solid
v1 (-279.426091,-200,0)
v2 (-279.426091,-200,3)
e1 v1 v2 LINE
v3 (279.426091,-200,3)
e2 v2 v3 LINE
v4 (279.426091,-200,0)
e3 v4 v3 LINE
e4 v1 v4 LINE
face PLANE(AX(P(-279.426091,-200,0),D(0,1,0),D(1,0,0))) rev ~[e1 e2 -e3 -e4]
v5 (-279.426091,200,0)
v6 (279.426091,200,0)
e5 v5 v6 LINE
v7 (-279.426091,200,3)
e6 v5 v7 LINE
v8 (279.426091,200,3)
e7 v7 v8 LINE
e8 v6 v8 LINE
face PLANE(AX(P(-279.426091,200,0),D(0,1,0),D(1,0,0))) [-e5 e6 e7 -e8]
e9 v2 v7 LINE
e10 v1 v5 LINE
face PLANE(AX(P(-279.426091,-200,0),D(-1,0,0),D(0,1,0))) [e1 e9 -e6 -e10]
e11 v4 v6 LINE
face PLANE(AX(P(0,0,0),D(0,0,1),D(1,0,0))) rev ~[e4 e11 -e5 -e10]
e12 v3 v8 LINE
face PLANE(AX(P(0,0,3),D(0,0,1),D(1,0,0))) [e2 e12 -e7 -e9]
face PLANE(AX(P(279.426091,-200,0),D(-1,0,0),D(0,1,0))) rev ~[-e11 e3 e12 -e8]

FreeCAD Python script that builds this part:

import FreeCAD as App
import Part
import Sketcher

V = App.Vector


def add_polygon(sketch, points):
    """Adds a closed chain of lines whose ends are joined by coincident constraints."""
    first, n = sketch.GeometryCount, len(points)
    for a, b in zip(points, points[1:] + points[:1]):
        sketch.addGeometry(Part.LineSegment(App.Vector(*a, 0), App.Vector(*b, 0)), False)
    for i in range(n):
        sketch.addConstraint(Sketcher.Constraint("Coincident", first + i, 2, first + (i + 1) % n, 1))

doc = App.newDocument("Part")
body = doc.addObject("PartDesign::Body", "Body")

sketch1 = body.newObject("Sketcher::SketchObject", "Sketch")
sketch1.AttachmentSupport = (doc.getObject("XY_Plane"), [""])
sketch1.MapMode = "FlatFace"
add_polygon(sketch1, [(-279.426091, 200), (-279.426091, -200), (279.426091, -200), (279.426091, 200)])
sketch1.addConstraint(Sketcher.Constraint("Vertical", 0))
sketch1.addConstraint(Sketcher.Constraint("Horizontal", 1))
sketch1.addConstraint(Sketcher.Constraint("Vertical", 2))
sketch1.addConstraint(Sketcher.Constraint("Horizontal", 3))
sketch1.addConstraint(Sketcher.Constraint("Symmetric", 0, 2, 2, 2, -1, 1))
sketch1.addConstraint(Sketcher.Constraint("DistanceY", 0, 2, 0, 1, 400.0))
sketch1.addConstraint(Sketcher.Constraint("DistanceX", 1, 1, 1, 2, 558.852182))
pad1 = body.newObject("PartDesign::Pad", "Pad")
pad1.Profile = sketch1
pad1.Length = 3

doc.recompute()
